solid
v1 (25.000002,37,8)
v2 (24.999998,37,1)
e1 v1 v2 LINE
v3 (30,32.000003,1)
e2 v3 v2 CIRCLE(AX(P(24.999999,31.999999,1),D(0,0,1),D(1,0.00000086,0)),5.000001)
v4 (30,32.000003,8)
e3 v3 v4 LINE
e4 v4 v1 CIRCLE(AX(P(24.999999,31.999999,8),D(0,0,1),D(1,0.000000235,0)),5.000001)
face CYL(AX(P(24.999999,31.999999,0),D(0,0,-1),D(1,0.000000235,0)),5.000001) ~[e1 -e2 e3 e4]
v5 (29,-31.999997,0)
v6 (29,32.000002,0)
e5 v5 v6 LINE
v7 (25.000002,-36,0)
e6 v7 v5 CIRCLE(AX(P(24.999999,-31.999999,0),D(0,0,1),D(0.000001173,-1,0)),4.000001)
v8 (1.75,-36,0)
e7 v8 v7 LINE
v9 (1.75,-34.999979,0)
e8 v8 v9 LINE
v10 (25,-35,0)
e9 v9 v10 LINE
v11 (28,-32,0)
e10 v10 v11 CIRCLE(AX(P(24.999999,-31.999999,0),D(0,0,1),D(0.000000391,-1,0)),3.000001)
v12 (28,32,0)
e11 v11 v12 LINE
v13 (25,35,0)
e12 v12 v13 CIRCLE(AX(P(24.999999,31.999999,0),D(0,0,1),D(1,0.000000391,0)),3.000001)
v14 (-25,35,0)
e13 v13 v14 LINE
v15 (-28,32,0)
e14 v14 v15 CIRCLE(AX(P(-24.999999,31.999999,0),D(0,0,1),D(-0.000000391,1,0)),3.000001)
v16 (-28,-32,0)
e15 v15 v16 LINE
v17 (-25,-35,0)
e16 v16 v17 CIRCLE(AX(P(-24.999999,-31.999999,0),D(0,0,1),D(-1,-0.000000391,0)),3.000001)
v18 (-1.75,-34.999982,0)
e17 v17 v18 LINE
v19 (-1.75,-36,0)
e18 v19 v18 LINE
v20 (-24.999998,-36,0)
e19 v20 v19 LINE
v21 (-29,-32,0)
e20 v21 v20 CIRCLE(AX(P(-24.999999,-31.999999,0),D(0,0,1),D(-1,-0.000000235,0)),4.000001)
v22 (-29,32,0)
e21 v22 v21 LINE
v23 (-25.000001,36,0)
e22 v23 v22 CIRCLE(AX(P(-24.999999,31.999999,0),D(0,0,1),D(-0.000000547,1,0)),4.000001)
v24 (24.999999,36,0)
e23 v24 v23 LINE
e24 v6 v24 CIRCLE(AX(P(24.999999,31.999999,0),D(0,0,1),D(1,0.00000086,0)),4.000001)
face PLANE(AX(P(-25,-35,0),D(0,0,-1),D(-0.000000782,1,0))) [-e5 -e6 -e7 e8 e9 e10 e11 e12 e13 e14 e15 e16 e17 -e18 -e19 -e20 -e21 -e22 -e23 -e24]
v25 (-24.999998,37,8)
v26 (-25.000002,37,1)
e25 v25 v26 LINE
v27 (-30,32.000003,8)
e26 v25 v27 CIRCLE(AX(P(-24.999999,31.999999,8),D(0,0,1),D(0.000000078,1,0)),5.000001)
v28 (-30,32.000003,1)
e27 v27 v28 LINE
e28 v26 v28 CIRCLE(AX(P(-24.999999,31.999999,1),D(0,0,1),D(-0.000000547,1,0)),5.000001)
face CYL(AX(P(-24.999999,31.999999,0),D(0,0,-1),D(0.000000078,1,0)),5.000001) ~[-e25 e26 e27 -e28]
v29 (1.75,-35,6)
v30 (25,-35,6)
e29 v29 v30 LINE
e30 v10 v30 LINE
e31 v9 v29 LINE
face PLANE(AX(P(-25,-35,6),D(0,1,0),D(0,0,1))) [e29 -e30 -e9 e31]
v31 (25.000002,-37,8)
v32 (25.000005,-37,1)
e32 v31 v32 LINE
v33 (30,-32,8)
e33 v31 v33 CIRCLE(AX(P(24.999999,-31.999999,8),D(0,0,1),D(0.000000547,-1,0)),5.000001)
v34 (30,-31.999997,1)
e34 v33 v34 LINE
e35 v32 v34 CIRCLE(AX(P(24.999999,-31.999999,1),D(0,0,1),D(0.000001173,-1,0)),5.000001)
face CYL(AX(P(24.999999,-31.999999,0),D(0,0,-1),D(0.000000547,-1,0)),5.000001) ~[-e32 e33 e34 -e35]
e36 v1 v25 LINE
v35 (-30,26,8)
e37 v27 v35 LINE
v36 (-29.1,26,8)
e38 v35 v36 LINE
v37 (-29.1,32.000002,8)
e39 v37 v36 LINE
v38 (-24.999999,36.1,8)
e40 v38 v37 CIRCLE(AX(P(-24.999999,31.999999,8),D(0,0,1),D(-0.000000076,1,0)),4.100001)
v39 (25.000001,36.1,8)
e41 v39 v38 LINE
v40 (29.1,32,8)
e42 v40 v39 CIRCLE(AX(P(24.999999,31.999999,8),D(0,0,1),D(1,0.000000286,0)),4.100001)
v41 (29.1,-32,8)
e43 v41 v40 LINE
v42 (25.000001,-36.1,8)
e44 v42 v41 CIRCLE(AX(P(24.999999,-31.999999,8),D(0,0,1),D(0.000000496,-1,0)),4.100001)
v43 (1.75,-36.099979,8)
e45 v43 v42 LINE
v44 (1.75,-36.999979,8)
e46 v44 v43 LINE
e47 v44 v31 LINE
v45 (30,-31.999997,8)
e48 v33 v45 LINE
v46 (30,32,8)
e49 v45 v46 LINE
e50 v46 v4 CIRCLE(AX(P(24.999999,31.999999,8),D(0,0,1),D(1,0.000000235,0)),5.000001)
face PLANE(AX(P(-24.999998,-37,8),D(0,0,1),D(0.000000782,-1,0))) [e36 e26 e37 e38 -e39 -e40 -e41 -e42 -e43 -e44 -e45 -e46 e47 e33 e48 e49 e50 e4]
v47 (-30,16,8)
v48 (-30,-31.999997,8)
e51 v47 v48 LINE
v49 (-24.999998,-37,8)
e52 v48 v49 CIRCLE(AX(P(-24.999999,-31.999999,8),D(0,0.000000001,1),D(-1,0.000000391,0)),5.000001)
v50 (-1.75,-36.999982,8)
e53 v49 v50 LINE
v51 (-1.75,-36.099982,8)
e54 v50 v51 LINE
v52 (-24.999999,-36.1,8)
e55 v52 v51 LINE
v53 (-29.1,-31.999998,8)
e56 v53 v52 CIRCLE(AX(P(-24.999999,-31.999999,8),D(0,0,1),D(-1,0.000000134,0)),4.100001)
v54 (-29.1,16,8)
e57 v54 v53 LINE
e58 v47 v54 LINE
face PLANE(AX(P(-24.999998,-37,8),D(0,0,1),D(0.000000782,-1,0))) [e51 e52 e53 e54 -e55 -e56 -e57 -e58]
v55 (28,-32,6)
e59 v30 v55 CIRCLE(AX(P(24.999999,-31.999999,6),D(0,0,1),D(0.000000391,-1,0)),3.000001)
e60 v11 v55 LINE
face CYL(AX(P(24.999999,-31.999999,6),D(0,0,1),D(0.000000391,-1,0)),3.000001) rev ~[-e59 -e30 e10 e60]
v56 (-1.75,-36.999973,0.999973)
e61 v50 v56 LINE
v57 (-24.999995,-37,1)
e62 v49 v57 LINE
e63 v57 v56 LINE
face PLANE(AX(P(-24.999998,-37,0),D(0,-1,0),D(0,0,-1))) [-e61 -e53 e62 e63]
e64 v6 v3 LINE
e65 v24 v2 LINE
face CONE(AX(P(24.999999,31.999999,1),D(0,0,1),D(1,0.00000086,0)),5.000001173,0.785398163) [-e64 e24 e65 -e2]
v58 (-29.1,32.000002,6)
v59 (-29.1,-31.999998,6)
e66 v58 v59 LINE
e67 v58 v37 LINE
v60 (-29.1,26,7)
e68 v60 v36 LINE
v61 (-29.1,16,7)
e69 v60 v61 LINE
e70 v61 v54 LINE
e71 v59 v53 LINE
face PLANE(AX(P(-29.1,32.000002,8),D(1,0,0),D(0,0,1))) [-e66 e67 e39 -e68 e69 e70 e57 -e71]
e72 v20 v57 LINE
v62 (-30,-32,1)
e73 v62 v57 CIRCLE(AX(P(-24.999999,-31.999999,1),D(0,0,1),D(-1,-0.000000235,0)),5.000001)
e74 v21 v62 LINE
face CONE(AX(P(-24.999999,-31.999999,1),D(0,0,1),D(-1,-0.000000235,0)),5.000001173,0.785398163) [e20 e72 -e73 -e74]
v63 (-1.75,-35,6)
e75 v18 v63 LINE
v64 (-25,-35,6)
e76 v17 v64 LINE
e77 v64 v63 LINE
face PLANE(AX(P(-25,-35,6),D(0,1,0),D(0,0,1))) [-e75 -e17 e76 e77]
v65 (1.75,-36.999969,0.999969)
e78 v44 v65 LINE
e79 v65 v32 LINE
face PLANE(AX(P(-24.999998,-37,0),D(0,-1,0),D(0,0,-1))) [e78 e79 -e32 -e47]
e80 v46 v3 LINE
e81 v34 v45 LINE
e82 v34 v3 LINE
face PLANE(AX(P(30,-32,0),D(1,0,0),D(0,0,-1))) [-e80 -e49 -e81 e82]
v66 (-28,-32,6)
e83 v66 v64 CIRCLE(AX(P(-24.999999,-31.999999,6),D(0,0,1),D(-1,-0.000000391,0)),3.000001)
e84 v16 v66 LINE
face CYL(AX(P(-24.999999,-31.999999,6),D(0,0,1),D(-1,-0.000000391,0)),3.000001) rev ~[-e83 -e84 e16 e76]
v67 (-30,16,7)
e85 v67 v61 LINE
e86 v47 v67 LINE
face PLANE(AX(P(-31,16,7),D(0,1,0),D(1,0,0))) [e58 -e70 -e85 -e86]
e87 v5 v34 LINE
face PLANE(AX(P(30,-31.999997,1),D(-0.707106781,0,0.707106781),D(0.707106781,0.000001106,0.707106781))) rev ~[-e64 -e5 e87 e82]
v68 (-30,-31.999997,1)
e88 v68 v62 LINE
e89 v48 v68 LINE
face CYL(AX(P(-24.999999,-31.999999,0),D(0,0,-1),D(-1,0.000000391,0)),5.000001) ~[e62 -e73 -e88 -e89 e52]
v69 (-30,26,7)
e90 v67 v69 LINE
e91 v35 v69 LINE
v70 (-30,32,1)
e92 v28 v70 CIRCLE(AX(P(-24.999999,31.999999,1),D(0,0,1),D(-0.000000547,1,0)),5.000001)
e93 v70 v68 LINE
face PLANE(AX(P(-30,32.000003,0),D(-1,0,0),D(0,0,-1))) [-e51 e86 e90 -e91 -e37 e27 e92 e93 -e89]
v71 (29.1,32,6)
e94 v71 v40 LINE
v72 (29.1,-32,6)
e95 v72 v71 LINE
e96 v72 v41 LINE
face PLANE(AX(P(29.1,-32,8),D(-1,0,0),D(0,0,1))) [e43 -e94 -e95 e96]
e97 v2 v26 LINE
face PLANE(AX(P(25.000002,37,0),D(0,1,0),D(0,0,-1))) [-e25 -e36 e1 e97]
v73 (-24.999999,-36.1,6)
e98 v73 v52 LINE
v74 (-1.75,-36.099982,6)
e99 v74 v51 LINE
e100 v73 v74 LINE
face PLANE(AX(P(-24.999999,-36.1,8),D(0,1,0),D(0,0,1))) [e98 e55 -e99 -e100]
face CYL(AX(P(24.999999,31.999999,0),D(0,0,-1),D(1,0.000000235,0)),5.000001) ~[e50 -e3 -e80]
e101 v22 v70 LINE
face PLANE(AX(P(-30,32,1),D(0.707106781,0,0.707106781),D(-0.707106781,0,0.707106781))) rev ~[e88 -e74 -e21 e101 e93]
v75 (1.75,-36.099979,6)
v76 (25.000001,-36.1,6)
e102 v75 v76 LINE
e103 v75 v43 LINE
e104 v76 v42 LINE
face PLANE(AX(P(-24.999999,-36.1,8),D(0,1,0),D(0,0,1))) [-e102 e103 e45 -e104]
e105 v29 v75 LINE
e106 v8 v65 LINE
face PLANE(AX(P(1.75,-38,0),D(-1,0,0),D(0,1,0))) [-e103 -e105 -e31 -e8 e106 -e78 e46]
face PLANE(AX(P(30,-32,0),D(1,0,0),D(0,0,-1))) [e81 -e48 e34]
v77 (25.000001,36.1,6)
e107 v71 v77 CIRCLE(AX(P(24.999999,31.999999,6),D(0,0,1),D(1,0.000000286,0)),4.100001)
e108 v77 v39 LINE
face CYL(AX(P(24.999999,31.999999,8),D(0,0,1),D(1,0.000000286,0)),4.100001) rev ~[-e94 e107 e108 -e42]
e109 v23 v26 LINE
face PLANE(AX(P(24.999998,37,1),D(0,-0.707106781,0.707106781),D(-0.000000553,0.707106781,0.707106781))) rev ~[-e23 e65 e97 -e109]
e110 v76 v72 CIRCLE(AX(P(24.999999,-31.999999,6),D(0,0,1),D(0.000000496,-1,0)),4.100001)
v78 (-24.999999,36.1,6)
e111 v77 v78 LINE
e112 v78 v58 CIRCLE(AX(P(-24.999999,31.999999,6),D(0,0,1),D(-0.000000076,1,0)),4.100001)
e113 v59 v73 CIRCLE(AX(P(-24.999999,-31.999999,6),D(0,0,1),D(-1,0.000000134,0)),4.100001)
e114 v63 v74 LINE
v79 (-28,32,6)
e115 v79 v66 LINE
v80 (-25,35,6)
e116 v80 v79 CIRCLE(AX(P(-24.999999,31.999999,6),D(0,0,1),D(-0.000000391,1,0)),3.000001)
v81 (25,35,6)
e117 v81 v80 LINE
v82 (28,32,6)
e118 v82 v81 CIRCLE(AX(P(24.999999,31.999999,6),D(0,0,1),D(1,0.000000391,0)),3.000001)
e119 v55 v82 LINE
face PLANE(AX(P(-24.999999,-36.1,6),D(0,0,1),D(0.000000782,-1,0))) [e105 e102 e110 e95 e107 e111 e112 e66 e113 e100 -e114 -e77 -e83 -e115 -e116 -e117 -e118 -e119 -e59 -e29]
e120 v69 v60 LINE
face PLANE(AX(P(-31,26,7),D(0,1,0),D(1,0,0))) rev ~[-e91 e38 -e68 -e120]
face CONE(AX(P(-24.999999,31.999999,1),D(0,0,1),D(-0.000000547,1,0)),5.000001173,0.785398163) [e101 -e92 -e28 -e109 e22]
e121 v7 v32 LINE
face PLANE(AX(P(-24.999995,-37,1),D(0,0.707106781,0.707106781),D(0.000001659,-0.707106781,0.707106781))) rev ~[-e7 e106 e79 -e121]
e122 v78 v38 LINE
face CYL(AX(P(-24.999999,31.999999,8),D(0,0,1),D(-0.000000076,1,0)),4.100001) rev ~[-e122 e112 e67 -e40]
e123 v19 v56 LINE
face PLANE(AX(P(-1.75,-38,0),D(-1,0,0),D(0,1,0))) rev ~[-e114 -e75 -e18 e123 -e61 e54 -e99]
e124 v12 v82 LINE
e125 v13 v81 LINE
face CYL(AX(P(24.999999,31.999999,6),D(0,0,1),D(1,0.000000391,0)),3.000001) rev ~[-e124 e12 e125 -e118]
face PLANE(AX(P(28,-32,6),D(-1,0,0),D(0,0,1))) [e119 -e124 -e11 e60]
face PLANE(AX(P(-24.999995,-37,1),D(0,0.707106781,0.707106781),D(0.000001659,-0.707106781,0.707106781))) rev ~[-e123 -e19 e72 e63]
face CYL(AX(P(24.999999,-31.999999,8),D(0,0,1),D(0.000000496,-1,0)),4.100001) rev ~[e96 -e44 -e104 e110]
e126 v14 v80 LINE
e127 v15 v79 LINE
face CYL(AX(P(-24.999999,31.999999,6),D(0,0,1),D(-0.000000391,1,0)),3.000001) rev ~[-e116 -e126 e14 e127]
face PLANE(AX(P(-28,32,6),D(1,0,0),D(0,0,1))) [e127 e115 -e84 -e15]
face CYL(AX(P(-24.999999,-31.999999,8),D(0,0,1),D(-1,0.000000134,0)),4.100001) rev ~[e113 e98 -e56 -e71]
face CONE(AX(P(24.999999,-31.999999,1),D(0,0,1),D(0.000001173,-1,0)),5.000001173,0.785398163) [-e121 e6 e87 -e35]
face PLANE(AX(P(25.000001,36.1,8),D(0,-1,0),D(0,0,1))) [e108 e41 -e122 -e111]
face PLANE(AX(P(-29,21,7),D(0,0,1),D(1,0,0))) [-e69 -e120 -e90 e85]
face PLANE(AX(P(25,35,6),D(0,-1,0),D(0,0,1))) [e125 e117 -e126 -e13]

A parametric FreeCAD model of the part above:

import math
import FreeCAD as App
import Part
import Sketcher

V = App.Vector


def add_polygon(sketch, points):
    """Adds a closed chain of lines whose ends are joined by coincident constraints."""
    first, n = sketch.GeometryCount, len(points)
    for a, b in zip(points, points[1:] + points[:1]):
        sketch.addGeometry(Part.LineSegment(App.Vector(*a, 0), App.Vector(*b, 0)), False)
    for i in range(n):
        sketch.addConstraint(Sketcher.Constraint("Coincident", first + i, 2, first + (i + 1) % n, 1))

doc = App.newDocument("Part")
body = doc.addObject("PartDesign::Body", "Body")

# Sketch on XY plane
sketch1 = doc.addObject("Sketcher::SketchObject", "Sketch")
body.addObject(sketch1)
sketch1.AttachmentSupport = (doc.XY_Plane, [""])
sketch1.MapMode = "FlatFace"
add_polygon(sketch1, [(-1.8, -34), (-1.8, -38), (1.8, -38), (1.8, -34)])  # lines 0-3
sketch1.addConstraint(Sketcher.Constraint("Vertical", 0))
sketch1.addConstraint(Sketcher.Constraint("Horizontal", 1))
sketch1.addConstraint(Sketcher.Constraint("Vertical", 2))
sketch1.addConstraint(Sketcher.Constraint("Horizontal", 3))
sketch1.addConstraint(Sketcher.Constraint("DistanceY", 0, 2, 0, 1, 4.0))
sketch1.addConstraint(Sketcher.Constraint("DistanceX", 1, 1, 1, 2, 3.5))
sketch1.addConstraint(Sketcher.Constraint("DistanceY", 0, 2, -1, 1, 38.0))
sketch1.addConstraint(Sketcher.Constraint("DistanceX", 0, 2, -1, 1, 1.75))
pad1 = doc.addObject("PartDesign::Pad", "Pad")
body.addObject(pad1)
pad1.Profile = sketch1
pad1.Length = 8
body2 = doc.addObject("PartDesign::Body", "Body001")

# Sketch on XZ plane
sketch2 = doc.addObject("Sketcher::SketchObject", "Sketch001")
body2.addObject(sketch2)
sketch2.AttachmentSupport = (doc.getObject("XZ_Plane001"), [""])
sketch2.MapMode = "FlatFace"
add_polygon(sketch2, [(-30, 9), (-28, 11), (-28, 12), (-33, 12), (-33, -2), (-28, -2), (-28, -1), (-30, 1)])  # lines 0-7
sketch2.addConstraint(Sketcher.Constraint("Vertical", 1))
sketch2.addConstraint(Sketcher.Constraint("Horizontal", 2))
sketch2.addConstraint(Sketcher.Constraint("Vertical", 3))
sketch2.addConstraint(Sketcher.Constraint("Horizontal", 4))
sketch2.addConstraint(Sketcher.Constraint("Vertical", 5))
sketch2.addConstraint(Sketcher.Constraint("Vertical", 7))
sketch2.addConstraint(Sketcher.Constraint("Perpendicular", 0, 6))
sketch2.addConstraint(Sketcher.Constraint("Vertical", 1, 2, 4, 2))
sketch2.addConstraint(Sketcher.Constraint("Equal", 1, 5))
sketch2.addConstraint(Sketcher.Constraint("Equal", 0, 6))
sketch2.addConstraint(Sketcher.Constraint("DistanceX", 2, 2, 2, 1, 5.0))
sketch2.addConstraint(Sketcher.Constraint("DistanceY", 1, 1, 1, 2, 1.0))
sketch2.addConstraint(Sketcher.Constraint("DistanceY", 3, 2, 3, 1, 14.0))
sketch2.addConstraint(Sketcher.Constraint("DistanceY", 7, 1, 7, 2, 8.0))
sketch2.addConstraint(Sketcher.Constraint("DistanceX", 0, 2, -1, 1, 28.0))
sketch2.addConstraint(Sketcher.Constraint("DistanceY", -1, 1, 0, 2, 11.0))

# Sketch on XY plane
sketch3 = doc.addObject("Sketcher::SketchObject", "Sketch002")
body2.addObject(sketch3)
sketch3.AttachmentSupport = (doc.getObject("XY_Plane001"), [""])
sketch3.MapMode = "FlatFace"
sketch3.AttachmentOffset = App.Placement(V(0, 0, -2), App.Rotation())
sketch3.addGeometry(Part.LineSegment(V(-25, -35, 0), V(25, -35, 0)), False)
sketch3.addGeometry(Part.ArcOfCircle(Part.Circle(V(25, -32, 0), V(0, 0, 1), 3), math.radians(-90), math.radians(0)), False)
sketch3.addGeometry(Part.LineSegment(V(28, -32, 0), V(28, 32, 0)), False)
sketch3.addGeometry(Part.ArcOfCircle(Part.Circle(V(25, 32, 0), V(0, 0, 1), 3), math.radians(0), math.radians(90)), False)
sketch3.addGeometry(Part.LineSegment(V(25, 35, 0), V(-25, 35, 0)), False)
sketch3.addGeometry(Part.ArcOfCircle(Part.Circle(V(-25, 32, 0), V(0, 0, 1), 3), math.radians(90), math.radians(180)), False)
sketch3.addGeometry(Part.LineSegment(V(-28, 32, 0), V(-28, -32, 0)), False)
sketch3.addGeometry(Part.ArcOfCircle(Part.Circle(V(-25, -32, 0), V(0, 0, 1), 3), math.radians(-180), math.radians(-90)), False)
sketch3.addConstraint(Sketcher.Constraint("Tangent", 0, 2, 1, 1))
sketch3.addConstraint(Sketcher.Constraint("Tangent", 1, 2, 2, 1))
sketch3.addConstraint(Sketcher.Constraint("Tangent", 2, 2, 3, 1))
sketch3.addConstraint(Sketcher.Constraint("Tangent", 3, 2, 4, 1))
sketch3.addConstraint(Sketcher.Constraint("Tangent", 4, 2, 5, 1))
sketch3.addConstraint(Sketcher.Constraint("Tangent", 5, 2, 6, 1))
sketch3.addConstraint(Sketcher.Constraint("Tangent", 6, 2, 7, 1))
sketch3.addConstraint(Sketcher.Constraint("Tangent", 7, 2, 0, 1))
sketch3.addConstraint(Sketcher.Constraint("Horizontal", 0))
sketch3.addConstraint(Sketcher.Constraint("Vertical", 2))
sketch3.addConstraint(Sketcher.Constraint("Horizontal", 4))
sketch3.addConstraint(Sketcher.Constraint("Vertical", 6))
sketch3.addConstraint(Sketcher.Constraint("Equal", 1, 3))
sketch3.addConstraint(Sketcher.Constraint("Equal", 3, 5))
sketch3.addConstraint(Sketcher.Constraint("Equal", 5, 7))
sketch3.addConstraint(Sketcher.Constraint("Symmetric", 1, 3, 5, 3, -1, 1))
sketch3.addConstraint(Sketcher.Constraint("Radius", 1, 3.000001))
sketch3.addConstraint(Sketcher.Constraint("DistanceX", 0, 1, 0, 2, 50.0))
sketch3.addConstraint(Sketcher.Constraint("DistanceY", 2, 1, 2, 2, 64.0))
doc.recompute()

additivepipe = doc.addObject("PartDesign::AdditivePipe", "AdditivePipe")
body2.addObject(additivepipe)
additivepipe.Profile = sketch2
additivepipe.Spine = (sketch3, ["Edge1", "Edge2", "Edge3", "Edge4", "Edge5", "Edge6", "Edge7", "Edge8"])
body3 = doc.addObject("PartDesign::Body", "Body002")

# Sketch on XY plane
sketch4 = doc.addObject("Sketcher::SketchObject", "Sketch003")
body3.addObject(sketch4)
sketch4.AttachmentSupport = (doc.getObject("XY_Plane002"), [""])
sketch4.MapMode = "FlatFace"
sketch4.AttachmentOffset = App.Placement(V(0, 0, 7), App.Rotation())
add_polygon(sketch4, [(-31, 26), (-31, 16), (-27, 16), (-27, 26)])  # lines 0-3
sketch4.addConstraint(Sketcher.Constraint("Vertical", 0))
sketch4.addConstraint(Sketcher.Constraint("Horizontal", 1))
sketch4.addConstraint(Sketcher.Constraint("Vertical", 2))
sketch4.addConstraint(Sketcher.Constraint("Horizontal", 3))
sketch4.addConstraint(Sketcher.Constraint("DistanceX", 1, 1, 1, 2, 4.0))
sketch4.addConstraint(Sketcher.Constraint("DistanceY", 0, 2, 0, 1, 10.0))
sketch4.addConstraint(Sketcher.Constraint("DistanceX", 0, 2, -1, 1, 31.0))
sketch4.addConstraint(Sketcher.Constraint("DistanceY", -1, 1, 0, 2, 16.0))
pad2 = doc.addObject("PartDesign::Pad", "Pad001")
body3.addObject(pad2)
pad2.Profile = sketch4
pad2.Length = 1
doc.recompute()

boolean = doc.addObject("PartDesign::Boolean", "Boolean")
body3.addObject(boolean)
boolean.Type = "Fuse"
boolean.addObjects([body2])
body4 = doc.addObject("PartDesign::Body", "Body003")

# Sketch on XZ plane
sketch5 = doc.addObject("Sketcher::SketchObject", "Sketch004")
body4.addObject(sketch5)
sketch5.AttachmentSupport = (doc.getObject("XZ_Plane003"), [""])
sketch5.MapMode = "FlatFace"
add_polygon(sketch5, [(29.1, 8), (30, 8), (30, 0), (28, 0), (28, 6), (29.1, 6)])  # lines 0-5
sketch5.addConstraint(Sketcher.Constraint("Horizontal", 0))
sketch5.addConstraint(Sketcher.Constraint("Vertical", 1))
sketch5.addConstraint(Sketcher.Constraint("Horizontal", 2))
sketch5.addConstraint(Sketcher.Constraint("Vertical", 3))
sketch5.addConstraint(Sketcher.Constraint("Horizontal", 4))
sketch5.addConstraint(Sketcher.Constraint("Vertical", 5))
sketch5.addConstraint(Sketcher.Constraint("PointOnObject", 1, 2, -1))
sketch5.addConstraint(Sketcher.Constraint("Equal", 2, 5))
sketch5.addConstraint(Sketcher.Constraint("DistanceX", 2, 2, 2, 1, 2.0))
sketch5.addConstraint(Sketcher.Constraint("DistanceY", 1, 2, 1, 1, 8.0))
sketch5.addConstraint(Sketcher.Constraint("DistanceX", 0, 1, 0, 2, 0.9))
sketch5.addConstraint(Sketcher.Constraint("DistanceX", -1, 1, 0, 2, 30.0))

# Sketch on XY plane
sketch6 = doc.addObject("Sketcher::SketchObject", "Sketch005")
body4.addObject(sketch6)
sketch6.AttachmentSupport = (doc.getObject("XY_Plane003"), [""])
sketch6.MapMode = "FlatFace"
sketch6.addGeometry(Part.LineSegment(V(-25, -35, 0), V(25, -35, 0)), False)
sketch6.addGeometry(Part.ArcOfCircle(Part.Circle(V(25, -32, 0), V(0, 0, 1), 3), math.radians(-90), math.radians(0)), False)
sketch6.addGeometry(Part.LineSegment(V(28, -32, 0), V(28, 32, 0)), False)
sketch6.addGeometry(Part.ArcOfCircle(Part.Circle(V(25, 32, 0), V(0, 0, 1), 3), math.radians(0), math.radians(90)), False)
sketch6.addGeometry(Part.LineSegment(V(25, 35, 0), V(-25, 35, 0)), False)
sketch6.addGeometry(Part.ArcOfCircle(Part.Circle(V(-25, 32, 0), V(0, 0, 1), 3), math.radians(90), math.radians(180)), False)
sketch6.addGeometry(Part.LineSegment(V(-28, 32, 0), V(-28, -32, 0)), False)
sketch6.addGeometry(Part.ArcOfCircle(Part.Circle(V(-25, -32, 0), V(0, 0, 1), 3), math.radians(-180), math.radians(-90)), False)
sketch6.addConstraint(Sketcher.Constraint("Tangent", 0, 2, 1, 1))
sketch6.addConstraint(Sketcher.Constraint("Tangent", 1, 2, 2, 1))
sketch6.addConstraint(Sketcher.Constraint("Tangent", 2, 2, 3, 1))
sketch6.addConstraint(Sketcher.Constraint("Tangent", 3, 2, 4, 1))
sketch6.addConstraint(Sketcher.Constraint("Tangent", 4, 2, 5, 1))
sketch6.addConstraint(Sketcher.Constraint("Tangent", 5, 2, 6, 1))
sketch6.addConstraint(Sketcher.Constraint("Tangent", 6, 2, 7, 1))
sketch6.addConstraint(Sketcher.Constraint("Tangent", 7, 2, 0, 1))
sketch6.addConstraint(Sketcher.Constraint("Horizontal", 0))
sketch6.addConstraint(Sketcher.Constraint("Vertical", 2))
sketch6.addConstraint(Sketcher.Constraint("Horizontal", 4))
sketch6.addConstraint(Sketcher.Constraint("Vertical", 6))
sketch6.addConstraint(Sketcher.Constraint("Equal", 1, 3))
sketch6.addConstraint(Sketcher.Constraint("Equal", 3, 5))
sketch6.addConstraint(Sketcher.Constraint("Equal", 5, 7))
sketch6.addConstraint(Sketcher.Constraint("Symmetric", 1, 3, 5, 3, -1, 1))
sketch6.addConstraint(Sketcher.Constraint("Radius", 1, 3.000001))
sketch6.addConstraint(Sketcher.Constraint("DistanceX", 0, 1, 0, 2, 50.0))
sketch6.addConstraint(Sketcher.Constraint("DistanceY", 2, 1, 2, 2, 64.0))
doc.recompute()

additivepipe2 = doc.addObject("PartDesign::AdditivePipe", "AdditivePipe001")
body4.addObject(additivepipe2)
additivepipe2.Profile = sketch5
additivepipe2.Spine = (sketch6, ["Edge1", "Edge2", "Edge3", "Edge4", "Edge5", "Edge6", "Edge7", "Edge8"])
doc.recompute()

boolean2 = doc.addObject("PartDesign::Boolean", "Boolean001")
body4.addObject(boolean2)
boolean2.Type = "Cut"
boolean2.addObjects([body3])
doc.recompute()

boolean3 = doc.addObject("PartDesign::Boolean", "Boolean002")
body4.addObject(boolean3)
boolean3.Type = "Cut"
boolean3.addObjects([body])

doc.recompute()
